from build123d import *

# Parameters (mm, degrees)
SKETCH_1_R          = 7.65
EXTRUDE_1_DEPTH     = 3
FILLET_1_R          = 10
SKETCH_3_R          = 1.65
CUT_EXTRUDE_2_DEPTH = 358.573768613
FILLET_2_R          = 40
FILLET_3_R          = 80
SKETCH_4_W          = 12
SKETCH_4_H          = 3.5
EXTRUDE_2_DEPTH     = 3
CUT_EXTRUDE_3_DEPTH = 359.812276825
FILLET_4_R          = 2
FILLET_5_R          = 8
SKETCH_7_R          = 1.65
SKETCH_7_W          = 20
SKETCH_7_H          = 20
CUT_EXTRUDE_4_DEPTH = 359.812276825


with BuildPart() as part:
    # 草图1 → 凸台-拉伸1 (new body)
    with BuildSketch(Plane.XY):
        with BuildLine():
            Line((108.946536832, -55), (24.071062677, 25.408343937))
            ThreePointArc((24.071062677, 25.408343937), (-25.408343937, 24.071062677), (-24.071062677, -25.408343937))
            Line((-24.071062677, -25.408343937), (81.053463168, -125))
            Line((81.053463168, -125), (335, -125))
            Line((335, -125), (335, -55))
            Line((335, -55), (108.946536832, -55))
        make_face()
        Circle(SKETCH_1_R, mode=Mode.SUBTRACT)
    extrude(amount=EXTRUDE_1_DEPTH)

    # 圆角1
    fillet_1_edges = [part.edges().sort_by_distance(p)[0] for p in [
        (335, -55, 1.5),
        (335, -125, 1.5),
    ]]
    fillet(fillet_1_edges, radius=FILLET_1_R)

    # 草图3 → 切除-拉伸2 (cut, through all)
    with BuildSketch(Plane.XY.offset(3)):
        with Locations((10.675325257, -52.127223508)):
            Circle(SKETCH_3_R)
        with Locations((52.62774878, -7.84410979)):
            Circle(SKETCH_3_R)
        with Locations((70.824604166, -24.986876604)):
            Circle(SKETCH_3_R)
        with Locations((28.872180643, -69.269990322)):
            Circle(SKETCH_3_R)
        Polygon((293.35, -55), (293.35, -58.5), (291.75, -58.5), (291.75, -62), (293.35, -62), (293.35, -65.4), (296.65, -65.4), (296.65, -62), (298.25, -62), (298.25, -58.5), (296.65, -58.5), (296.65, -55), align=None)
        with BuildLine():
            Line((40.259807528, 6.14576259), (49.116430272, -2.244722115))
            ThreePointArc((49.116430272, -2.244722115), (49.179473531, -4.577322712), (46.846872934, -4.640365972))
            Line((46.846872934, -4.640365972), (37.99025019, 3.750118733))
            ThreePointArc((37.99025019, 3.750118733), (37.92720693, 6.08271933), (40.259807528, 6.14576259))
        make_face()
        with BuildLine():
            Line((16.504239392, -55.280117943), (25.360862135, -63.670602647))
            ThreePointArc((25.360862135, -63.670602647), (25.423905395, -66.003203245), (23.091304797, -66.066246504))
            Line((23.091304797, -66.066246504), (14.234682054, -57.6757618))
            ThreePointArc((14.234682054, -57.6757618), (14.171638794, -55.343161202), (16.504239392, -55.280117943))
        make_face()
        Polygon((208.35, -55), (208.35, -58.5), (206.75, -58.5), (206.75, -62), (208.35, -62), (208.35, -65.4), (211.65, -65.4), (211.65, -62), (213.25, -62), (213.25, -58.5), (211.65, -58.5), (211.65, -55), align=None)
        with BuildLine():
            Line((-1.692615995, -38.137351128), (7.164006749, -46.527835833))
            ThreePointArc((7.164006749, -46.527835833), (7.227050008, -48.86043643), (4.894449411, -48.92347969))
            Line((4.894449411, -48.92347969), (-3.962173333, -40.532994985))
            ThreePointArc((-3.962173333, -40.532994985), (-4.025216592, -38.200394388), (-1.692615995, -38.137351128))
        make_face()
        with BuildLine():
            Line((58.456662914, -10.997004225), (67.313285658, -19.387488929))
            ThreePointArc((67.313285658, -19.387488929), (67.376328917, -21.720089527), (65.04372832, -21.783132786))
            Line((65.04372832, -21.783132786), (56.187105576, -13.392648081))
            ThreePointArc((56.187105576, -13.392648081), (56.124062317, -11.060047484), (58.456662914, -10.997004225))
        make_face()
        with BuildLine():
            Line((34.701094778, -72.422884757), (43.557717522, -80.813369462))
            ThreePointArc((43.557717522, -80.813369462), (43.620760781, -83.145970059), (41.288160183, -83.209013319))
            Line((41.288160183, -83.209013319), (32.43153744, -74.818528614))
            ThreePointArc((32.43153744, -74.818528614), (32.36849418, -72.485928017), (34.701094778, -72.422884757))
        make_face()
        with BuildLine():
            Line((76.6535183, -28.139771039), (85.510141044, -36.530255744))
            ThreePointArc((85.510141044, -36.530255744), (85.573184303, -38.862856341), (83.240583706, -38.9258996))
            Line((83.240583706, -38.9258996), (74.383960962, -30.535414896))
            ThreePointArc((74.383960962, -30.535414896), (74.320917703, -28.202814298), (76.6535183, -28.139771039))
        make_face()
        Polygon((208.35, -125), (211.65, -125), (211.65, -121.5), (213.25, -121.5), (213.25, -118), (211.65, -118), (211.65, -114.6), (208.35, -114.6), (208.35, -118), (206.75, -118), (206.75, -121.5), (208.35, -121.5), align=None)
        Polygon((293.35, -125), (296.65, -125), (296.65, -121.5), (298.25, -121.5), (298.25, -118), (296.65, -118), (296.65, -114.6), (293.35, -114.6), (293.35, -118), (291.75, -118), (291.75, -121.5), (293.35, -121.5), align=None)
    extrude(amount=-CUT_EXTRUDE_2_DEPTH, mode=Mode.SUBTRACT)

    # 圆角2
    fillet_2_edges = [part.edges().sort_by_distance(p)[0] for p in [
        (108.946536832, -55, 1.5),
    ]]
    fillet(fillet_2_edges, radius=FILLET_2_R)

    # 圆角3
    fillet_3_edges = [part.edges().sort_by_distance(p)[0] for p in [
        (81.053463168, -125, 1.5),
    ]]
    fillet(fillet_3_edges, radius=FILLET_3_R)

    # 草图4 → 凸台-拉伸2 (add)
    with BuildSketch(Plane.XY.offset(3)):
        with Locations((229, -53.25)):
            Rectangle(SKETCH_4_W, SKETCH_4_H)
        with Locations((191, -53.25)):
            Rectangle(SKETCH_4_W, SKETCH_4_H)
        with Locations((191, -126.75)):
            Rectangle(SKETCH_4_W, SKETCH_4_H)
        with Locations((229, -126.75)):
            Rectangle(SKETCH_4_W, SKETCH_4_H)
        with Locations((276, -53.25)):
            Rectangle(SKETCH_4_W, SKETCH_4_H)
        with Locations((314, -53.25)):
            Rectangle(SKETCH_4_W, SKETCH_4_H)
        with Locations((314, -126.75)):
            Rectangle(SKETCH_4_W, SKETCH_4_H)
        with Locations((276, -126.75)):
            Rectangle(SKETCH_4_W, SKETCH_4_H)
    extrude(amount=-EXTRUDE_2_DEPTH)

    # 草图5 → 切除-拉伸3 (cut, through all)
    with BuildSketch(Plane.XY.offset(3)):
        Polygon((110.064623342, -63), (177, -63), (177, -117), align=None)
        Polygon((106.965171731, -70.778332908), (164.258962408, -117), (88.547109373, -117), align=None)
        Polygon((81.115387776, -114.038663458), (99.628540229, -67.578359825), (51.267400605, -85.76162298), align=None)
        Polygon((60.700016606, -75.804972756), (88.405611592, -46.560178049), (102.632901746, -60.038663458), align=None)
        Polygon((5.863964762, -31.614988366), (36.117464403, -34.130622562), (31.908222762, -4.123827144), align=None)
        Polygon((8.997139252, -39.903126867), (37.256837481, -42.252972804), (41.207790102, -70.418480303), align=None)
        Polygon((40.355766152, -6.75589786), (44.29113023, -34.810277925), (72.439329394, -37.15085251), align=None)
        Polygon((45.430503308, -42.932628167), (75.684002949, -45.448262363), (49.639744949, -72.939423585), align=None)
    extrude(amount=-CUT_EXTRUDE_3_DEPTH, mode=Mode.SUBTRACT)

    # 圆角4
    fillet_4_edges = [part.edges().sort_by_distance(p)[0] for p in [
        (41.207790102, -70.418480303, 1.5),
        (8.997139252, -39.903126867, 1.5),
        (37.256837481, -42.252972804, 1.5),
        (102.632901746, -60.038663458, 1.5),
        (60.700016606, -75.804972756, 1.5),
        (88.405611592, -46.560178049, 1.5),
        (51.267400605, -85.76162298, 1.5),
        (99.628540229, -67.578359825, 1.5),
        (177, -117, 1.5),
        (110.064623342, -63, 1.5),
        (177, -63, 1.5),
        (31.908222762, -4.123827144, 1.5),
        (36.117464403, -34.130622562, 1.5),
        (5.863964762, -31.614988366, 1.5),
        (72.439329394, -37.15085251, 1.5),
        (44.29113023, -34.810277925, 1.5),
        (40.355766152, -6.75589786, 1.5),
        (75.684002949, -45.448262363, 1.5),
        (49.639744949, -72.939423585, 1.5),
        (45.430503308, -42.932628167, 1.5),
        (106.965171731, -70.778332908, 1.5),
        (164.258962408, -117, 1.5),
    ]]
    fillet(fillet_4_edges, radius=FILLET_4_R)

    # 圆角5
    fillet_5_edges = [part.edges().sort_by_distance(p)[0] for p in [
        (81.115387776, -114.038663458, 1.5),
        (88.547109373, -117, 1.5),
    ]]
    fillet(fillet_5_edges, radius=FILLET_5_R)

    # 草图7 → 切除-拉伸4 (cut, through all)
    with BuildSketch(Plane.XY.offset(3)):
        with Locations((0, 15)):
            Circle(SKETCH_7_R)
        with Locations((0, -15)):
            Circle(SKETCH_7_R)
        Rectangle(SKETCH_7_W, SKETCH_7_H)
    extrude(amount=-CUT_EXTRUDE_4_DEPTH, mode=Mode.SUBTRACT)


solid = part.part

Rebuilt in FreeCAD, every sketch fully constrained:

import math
import FreeCAD as App
import Part
import Sketcher
from FreeCAD import Vector


def edges_at(feature, points):
    """Names of the edges that pass closest to the given points."""
    edges = feature.Shape.Edges
    near = lambda p: min(range(len(edges)), key=lambda i: edges[i].distToShape(Part.Vertex(*p))[0])
    return sorted({f"Edge{near(p) + 1}" for p in points})


def add_polygon(sketch, points):
    """Adds a closed chain of lines whose ends are joined by coincident constraints."""
    first, n = sketch.GeometryCount, len(points)
    for a, b in zip(points, points[1:] + points[:1]):
        sketch.addGeometry(Part.LineSegment(App.Vector(*a, 0), App.Vector(*b, 0)), False)
    for i in range(n):
        sketch.addConstraint(Sketcher.Constraint("Coincident", first + i, 2, first + (i + 1) % n, 1))

doc = App.newDocument("Part")
body = doc.addObject("PartDesign::Body", "Body")

# Sketch on XY plane
sketch1 = body.newObject("Sketcher::SketchObject", "Sketch")
sketch1.AttachmentSupport = (doc.getObject("XY_Plane"), [""])
sketch1.MapMode = "FlatFace"
sketch1.addGeometry(Part.LineSegment(Vector(109, -55, 0), Vector(24, 25, 0)), False)
sketch1.addGeometry(Part.ArcOfCircle(Part.Circle(Vector(0, 0, 0), Vector(0, 0, 1), 35), math.radians(47), math.radians(227)), False)
sketch1.addGeometry(Part.LineSegment(Vector(-24, -25, 0), Vector(81, -125, 0)), False)
sketch1.addGeometry(Part.LineSegment(Vector(81, -125, 0), Vector(335, -125, 0)), False)
sketch1.addGeometry(Part.LineSegment(Vector(335, -125, 0), Vector(335, -55, 0)), False)
sketch1.addGeometry(Part.LineSegment(Vector(335, -55, 0), Vector(109, -55, 0)), False)
sketch1.addGeometry(Part.Circle(Vector(0, 0, 0), Vector(0, 0, 1), 8), False)
sketch1.addConstraint(Sketcher.Constraint("Tangent", 0, 2, 1, 1))
sketch1.addConstraint(Sketcher.Constraint("Tangent", 1, 2, 2, 1))
sketch1.addConstraint(Sketcher.Constraint("Coincident", 2, 2, 3, 1))
sketch1.addConstraint(Sketcher.Constraint("Coincident", 3, 2, 4, 1))
sketch1.addConstraint(Sketcher.Constraint("Coincident", 4, 2, 5, 1))
sketch1.addConstraint(Sketcher.Constraint("Coincident", 5, 2, 0, 1))
sketch1.addConstraint(Sketcher.Constraint("Horizontal", 3))
sketch1.addConstraint(Sketcher.Constraint("Vertical", 4))
sketch1.addConstraint(Sketcher.Constraint("Horizontal", 5))
sketch1.addConstraint(Sketcher.Constraint("Coincident", 1, 3, -1, 1))
sketch1.addConstraint(Sketcher.Constraint("Coincident", 6, 3, -1, 1))
sketch1.addConstraint(Sketcher.Constraint("Parallel", 0, 2))
sketch1.addConstraint(Sketcher.Constraint("Radius", 1, 35.0))
sketch1.addConstraint(Sketcher.Constraint("Diameter", 6, 15.3))
sketch1.addConstraint(Sketcher.Constraint("DistanceY", 4, 1, 4, 2, 70.0))
sketch1.addConstraint(Sketcher.Constraint("DistanceY", 2, 2, -1, 1, 125.0))
sketch1.addConstraint(Sketcher.Constraint("DistanceX", -1, 1, 3, 2, 335.0))
sketch1.addConstraint(Sketcher.Constraint("DistanceX", 0, 2, 2, 2, 56.9824))
pad1 = body.newObject("PartDesign::Pad", "Pad")
pad1.Profile = sketch1
pad1.Length = 3
doc.recompute()

fillet = body.newObject("PartDesign::Fillet", "Fillet")
fillet.Base = (pad1, edges_at(pad1, [(335, -55, 1.5), (335, -125, 1.5)]))
fillet.Radius = 10

# Sketch on XY plane
sketch2 = body.newObject("Sketcher::SketchObject", "Sketch001")
sketch2.AttachmentSupport = (doc.getObject("XY_Plane"), [""])
sketch2.MapMode = "FlatFace"
sketch2.AttachmentOffset = App.Placement(Vector(0, 0, 3), App.Rotation())
sketch2.addGeometry(Part.Circle(Vector(10.7, -52.1, 0), Vector(0, 0, 1), 1.6), False)  # 0
sketch2.addGeometry(Part.Circle(Vector(52.6, -7.8, 0), Vector(0, 0, 1), 1.6), False)  # 1
sketch2.addGeometry(Part.Circle(Vector(70.8, -25, 0), Vector(0, 0, 1), 1.6), False)  # 2
sketch2.addGeometry(Part.Circle(Vector(28.9, -69.3, 0), Vector(0, 0, 1), 1.6), False)  # 3
add_polygon(sketch2, [(293.4, -55), (293.4, -58.5), (291.8, -58.5), (291.8, -62), (293.4, -62), (293.4, -65.4), (296.6, -65.4), (296.6, -62), (298.2, -62), (298.2, -58.5), (296.6, -58.5), (296.6, -55)])  # lines 4-15
sketch2.addGeometry(Part.LineSegment(Vector(49.1, -2.2, 0), Vector(40.3, 6.1, 0)), False)  # 16
sketch2.addGeometry(Part.ArcOfCircle(Part.Circle(Vector(39.1, 4.9, 0), Vector(0, 0, 1), 1.6), math.radians(47), math.radians(227)), False)  # 17
sketch2.addGeometry(Part.LineSegment(Vector(38, 3.8, 0), Vector(46.8, -4.6, 0)), False)  # 18
sketch2.addGeometry(Part.ArcOfCircle(Part.Circle(Vector(48, -3.4, 0), Vector(0, 0, 1), 1.6), math.radians(-133), math.radians(47)), False)  # 19
sketch2.addGeometry(Part.LineSegment(Vector(25.4, -63.7, 0), Vector(16.5, -55.3, 0)), False)  # 20
sketch2.addGeometry(Part.ArcOfCircle(Part.Circle(Vector(15.4, -56.5, 0), Vector(0, 0, 1), 1.6), math.radians(47), math.radians(227)), False)  # 21
sketch2.addGeometry(Part.LineSegment(Vector(14.2, -57.7, 0), Vector(23.1, -66.1, 0)), False)  # 22
sketch2.addGeometry(Part.ArcOfCircle(Part.Circle(Vector(24.2, -64.9, 0), Vector(0, 0, 1), 1.6), math.radians(-133), math.radians(47)), False)  # 23
add_polygon(sketch2, [(208.3, -55), (208.3, -58.5), (206.8, -58.5), (206.8, -62), (208.3, -62), (208.3, -65.4), (211.7, -65.4), (211.7, -62), (213.2, -62), (213.2, -58.5), (211.7, -58.5), (211.7, -55)])  # lines 24-35
sketch2.addGeometry(Part.LineSegment(Vector(7.2, -46.5, 0), Vector(-1.7, -38.1, 0)), False)  # 36
sketch2.addGeometry(Part.ArcOfCircle(Part.Circle(Vector(-2.8, -39.3, 0), Vector(0, 0, 1), 1.6), math.radians(47), math.radians(227)), False)  # 37
sketch2.addGeometry(Part.LineSegment(Vector(-4, -40.5, 0), Vector(4.9, -48.9, 0)), False)  # 38
sketch2.addGeometry(Part.ArcOfCircle(Part.Circle(Vector(6, -47.7, 0), Vector(0, 0, 1), 1.6), math.radians(-133), math.radians(47)), False)  # 39
sketch2.addGeometry(Part.LineSegment(Vector(67.3, -19.4, 0), Vector(58.5, -11, 0)), False)  # 40
sketch2.addGeometry(Part.ArcOfCircle(Part.Circle(Vector(57.3, -12.2, 0), Vector(0, 0, 1), 1.6), math.radians(47), math.radians(227)), False)  # 41
sketch2.addGeometry(Part.LineSegment(Vector(56.2, -13.4, 0), Vector(65, -21.8, 0)), False)  # 42
sketch2.addGeometry(Part.ArcOfCircle(Part.Circle(Vector(66.2, -20.6, 0), Vector(0, 0, 1), 1.6), math.radians(-133), math.radians(47)), False)  # 43
sketch2.addGeometry(Part.LineSegment(Vector(43.6, -80.8, 0), Vector(34.7, -72.4, 0)), False)  # 44
sketch2.addGeometry(Part.ArcOfCircle(Part.Circle(Vector(33.6, -73.6, 0), Vector(0, 0, 1), 1.6), math.radians(47), math.radians(227)), False)  # 45
sketch2.addGeometry(Part.LineSegment(Vector(32.4, -74.8, 0), Vector(41.3, -83.2, 0)), False)  # 46
sketch2.addGeometry(Part.ArcOfCircle(Part.Circle(Vector(42.4, -82, 0), Vector(0, 0, 1), 1.6), math.radians(-133), math.radians(47)), False)  # 47
sketch2.addGeometry(Part.LineSegment(Vector(85.5, -36.5, 0), Vector(76.7, -28.1, 0)), False)  # 48
sketch2.addGeometry(Part.ArcOfCircle(Part.Circle(Vector(75.5, -29.3, 0), Vector(0, 0, 1), 1.6), math.radians(47), math.radians(227)), False)  # 49
sketch2.addGeometry(Part.LineSegment(Vector(74.4, -30.5, 0), Vector(83.2, -38.9, 0)), False)  # 50
sketch2.addGeometry(Part.ArcOfCircle(Part.Circle(Vector(84.4, -37.7, 0), Vector(0, 0, 1), 1.6), math.radians(-133), math.radians(47)), False)  # 51
add_polygon(sketch2, [(208.3, -125), (211.7, -125), (211.7, -121.5), (213.2, -121.5), (213.2, -118), (211.7, -118), (211.7, -114.6), (208.3, -114.6), (208.3, -118), (206.8, -118), (206.8, -121.5), (208.3, -121.5)])  # lines 52-63
add_polygon(sketch2, [(293.4, -125), (296.6, -125), (296.6, -121.5), (298.2, -121.5), (298.2, -118), (296.6, -118), (296.6, -114.6), (293.4, -114.6), (293.4, -118), (291.8, -118), (291.8, -121.5), (293.4, -121.5)])  # lines 64-75
sketch2.addConstraint(Sketcher.Constraint("Tangent", 16, 2, 17, 1))
sketch2.addConstraint(Sketcher.Constraint("Tangent", 17, 2, 18, 1))
sketch2.addConstraint(Sketcher.Constraint("Tangent", 18, 2, 19, 1))
sketch2.addConstraint(Sketcher.Constraint("Tangent", 19, 2, 16, 1))
sketch2.addConstraint(Sketcher.Constraint("Tangent", 20, 2, 21, 1))
sketch2.addConstraint(Sketcher.Constraint("Tangent", 21, 2, 22, 1))
sketch2.addConstraint(Sketcher.Constraint("Tangent", 22, 2, 23, 1))
sketch2.addConstraint(Sketcher.Constraint("Tangent", 23, 2, 20, 1))
sketch2.addConstraint(Sketcher.Constraint("Tangent", 36, 2, 37, 1))
sketch2.addConstraint(Sketcher.Constraint("Tangent", 37, 2, 38, 1))
sketch2.addConstraint(Sketcher.Constraint("Tangent", 38, 2, 39, 1))
sketch2.addConstraint(Sketcher.Constraint("Tangent", 39, 2, 36, 1))
sketch2.addConstraint(Sketcher.Constraint("Tangent", 40, 2, 41, 1))
sketch2.addConstraint(Sketcher.Constraint("Tangent", 41, 2, 42, 1))
sketch2.addConstraint(Sketcher.Constraint("Tangent", 42, 2, 43, 1))
sketch2.addConstraint(Sketcher.Constraint("Tangent", 43, 2, 40, 1))
sketch2.addConstraint(Sketcher.Constraint("Tangent", 44, 2, 45, 1))
sketch2.addConstraint(Sketcher.Constraint("Tangent", 45, 2, 46, 1))
sketch2.addConstraint(Sketcher.Constraint("Tangent", 46, 2, 47, 1))
sketch2.addConstraint(Sketcher.Constraint("Tangent", 47, 2, 44, 1))
sketch2.addConstraint(Sketcher.Constraint("Tangent", 48, 2, 49, 1))
sketch2.addConstraint(Sketcher.Constraint("Tangent", 49, 2, 50, 1))
sketch2.addConstraint(Sketcher.Constraint("Tangent", 50, 2, 51, 1))
sketch2.addConstraint(Sketcher.Constraint("Tangent", 51, 2, 48, 1))
sketch2.addConstraint(Sketcher.Constraint("Vertical", 4))
sketch2.addConstraint(Sketcher.Constraint("Horizontal", 5))
sketch2.addConstraint(Sketcher.Constraint("Vertical", 6))
sketch2.addConstraint(Sketcher.Constraint("Horizontal", 7))
sketch2.addConstraint(Sketcher.Constraint("Vertical", 8))
sketch2.addConstraint(Sketcher.Constraint("Horizontal", 9))
sketch2.addConstraint(Sketcher.Constraint("Vertical", 10))
sketch2.addConstraint(Sketcher.Constraint("Horizontal", 11))
sketch2.addConstraint(Sketcher.Constraint("Vertical", 12))
sketch2.addConstraint(Sketcher.Constraint("Horizontal", 13))
sketch2.addConstraint(Sketcher.Constraint("Vertical", 14))
sketch2.addConstraint(Sketcher.Constraint("Horizontal", 15))
sketch2.addConstraint(Sketcher.Constraint("Vertical", 24))
sketch2.addConstraint(Sketcher.Constraint("Horizontal", 25))
sketch2.addConstraint(Sketcher.Constraint("Vertical", 26))
sketch2.addConstraint(Sketcher.Constraint("Horizontal", 27))
sketch2.addConstraint(Sketcher.Constraint("Vertical", 28))
sketch2.addConstraint(Sketcher.Constraint("Horizontal", 29))
sketch2.addConstraint(Sketcher.Constraint("Vertical", 30))
sketch2.addConstraint(Sketcher.Constraint("Horizontal", 31))
sketch2.addConstraint(Sketcher.Constraint("Vertical", 32))
sketch2.addConstraint(Sketcher.Constraint("Horizontal", 33))
sketch2.addConstraint(Sketcher.Constraint("Vertical", 34))
sketch2.addConstraint(Sketcher.Constraint("Horizontal", 35))
sketch2.addConstraint(Sketcher.Constraint("Horizontal", 52))
sketch2.addConstraint(Sketcher.Constraint("Vertical", 53))
sketch2.addConstraint(Sketcher.Constraint("Horizontal", 54))
sketch2.addConstraint(Sketcher.Constraint("Vertical", 55))
sketch2.addConstraint(Sketcher.Constraint("Horizontal", 56))
sketch2.addConstraint(Sketcher.Constraint("Vertical", 57))
sketch2.addConstraint(Sketcher.Constraint("Horizontal", 58))
sketch2.addConstraint(Sketcher.Constraint("Vertical", 59))
sketch2.addConstraint(Sketcher.Constraint("Horizontal", 60))
sketch2.addConstraint(Sketcher.Constraint("Vertical", 61))
sketch2.addConstraint(Sketcher.Constraint("Horizontal", 62))
sketch2.addConstraint(Sketcher.Constraint("Vertical", 63))
sketch2.addConstraint(Sketcher.Constraint("Horizontal", 64))
sketch2.addConstraint(Sketcher.Constraint("Vertical", 65))
sketch2.addConstraint(Sketcher.Constraint("Horizontal", 66))
sketch2.addConstraint(Sketcher.Constraint("Vertical", 67))
sketch2.addConstraint(Sketcher.Constraint("Horizontal", 68))
sketch2.addConstraint(Sketcher.Constraint("Vertical", 69))
sketch2.addConstraint(Sketcher.Constraint("Horizontal", 70))
sketch2.addConstraint(Sketcher.Constraint("Vertical", 71))
sketch2.addConstraint(Sketcher.Constraint("Horizontal", 72))
sketch2.addConstraint(Sketcher.Constraint("Vertical", 73))
sketch2.addConstraint(Sketcher.Constraint("Horizontal", 74))
sketch2.addConstraint(Sketcher.Constraint("Vertical", 75))
sketch2.addConstraint(Sketcher.Constraint("Equal", 0, 1))
sketch2.addConstraint(Sketcher.Constraint("Equal", 1, 2))
sketch2.addConstraint(Sketcher.Constraint("Equal", 2, 3))
sketch2.addConstraint(Sketcher.Constraint("Equal", 3, 17))
sketch2.addConstraint(Sketcher.Constraint("Equal", 17, 19))
sketch2.addConstraint(Sketcher.Constraint("Equal", 19, 21))
sketch2.addConstraint(Sketcher.Constraint("Equal", 21, 23))
sketch2.addConstraint(Sketcher.Constraint("Equal", 23, 37))
sketch2.addConstraint(Sketcher.Constraint("Equal", 37, 39))
sketch2.addConstraint(Sketcher.Constraint("Equal", 39, 41))
sketch2.addConstraint(Sketcher.Constraint("Equal", 41, 43))
sketch2.addConstraint(Sketcher.Constraint("Equal", 43, 45))
sketch2.addConstraint(Sketcher.Constraint("Equal", 45, 47))
sketch2.addConstraint(Sketcher.Constraint("Equal", 47, 49))
sketch2.addConstraint(Sketcher.Constraint("Equal", 49, 51))
sketch2.addConstraint(Sketcher.Constraint("Parallel", 18, 20))
sketch2.addConstraint(Sketcher.Constraint("Parallel", 22, 36))
sketch2.addConstraint(Sketcher.Constraint("Parallel", 38, 40))
sketch2.addConstraint(Sketcher.Constraint("Parallel", 42, 44))
sketch2.addConstraint(Sketcher.Constraint("Parallel", 46, 48))
sketch2.addConstraint(Sketcher.Constraint("Horizontal", 7, 2, 10, 2))
sketch2.addConstraint(Sketcher.Constraint("Horizontal", 5, 2, 12, 2))
sketch2.addConstraint(Sketcher.Constraint("Horizontal", 13, 2, 24, 2))
sketch2.addConstraint(Sketcher.Constraint("Horizontal", 11, 2, 26, 2))
sketch2.addConstraint(Sketcher.Constraint("Horizontal", 9, 2, 28, 2))
sketch2.addConstraint(Sketcher.Constraint("Horizontal", 27, 2, 30, 2))
sketch2.addConstraint(Sketcher.Constraint("Horizontal", 25, 2, 32, 2))
sketch2.addConstraint(Sketcher.Constraint("Horizontal", 15, 2, 34, 2))
sketch2.addConstraint(Sketcher.Constraint("Horizontal", 56, 2, 59, 2))
sketch2.addConstraint(Sketcher.Constraint("Horizontal", 54, 2, 61, 2))
sketch2.addConstraint(Sketcher.Constraint("Horizontal", 63, 2, 64, 2))
sketch2.addConstraint(Sketcher.Constraint("Horizontal", 62, 2, 65, 2))
sketch2.addConstraint(Sketcher.Constraint("Horizontal", 60, 2, 67, 2))
sketch2.addConstraint(Sketcher.Constraint("Horizontal", 58, 2, 69, 2))
sketch2.addConstraint(Sketcher.Constraint("Horizontal", 68, 2, 71, 2))
sketch2.addConstraint(Sketcher.Constraint("Horizontal", 66, 2, 73, 2))
sketch2.addConstraint(Sketcher.Constraint("Vertical", 4, 2, 7, 2))
sketch2.addConstraint(Sketcher.Constraint("Vertical", 10, 2, 13, 2))
sketch2.addConstraint(Sketcher.Constraint("Vertical", 24, 2, 27, 2))
sketch2.addConstraint(Sketcher.Constraint("Vertical", 30, 2, 33, 2))
sketch2.addConstraint(Sketcher.Constraint("Vertical", 34, 2, 52, 2))
sketch2.addConstraint(Sketcher.Constraint("Vertical", 32, 2, 54, 2))
sketch2.addConstraint(Sketcher.Constraint("Vertical", 53, 2, 56, 2))
sketch2.addConstraint(Sketcher.Constraint("Vertical", 35, 2, 58, 2))
sketch2.addConstraint(Sketcher.Constraint("Vertical", 26, 2, 60, 2))
sketch2.addConstraint(Sketcher.Constraint("Vertical", 59, 2, 62, 2))
sketch2.addConstraint(Sketcher.Constraint("Vertical", 14, 2, 64, 2))
sketch2.addConstraint(Sketcher.Constraint("Vertical", 12, 2, 66, 2))
sketch2.addConstraint(Sketcher.Constraint("Vertical", 65, 2, 68, 2))
sketch2.addConstraint(Sketcher.Constraint("Vertical", 15, 2, 70, 2))
sketch2.addConstraint(Sketcher.Constraint("Vertical", 6, 2, 72, 2))
sketch2.addConstraint(Sketcher.Constraint("Vertical", 71, 2, 74, 2))
sketch2.addConstraint(Sketcher.Constraint("Equal", 7, 11))
sketch2.addConstraint(Sketcher.Constraint("Equal", 13, 25))
sketch2.addConstraint(Sketcher.Constraint("Equal", 15, 29))
sketch2.addConstraint(Sketcher.Constraint("Equal", 27, 31))
sketch2.addConstraint(Sketcher.Constraint("Equal", 4, 6))
sketch2.addConstraint(Sketcher.Constraint("Equal", 34, 53))
sketch2.addConstraint(Sketcher.Constraint("Equal", 53, 55))
sketch2.addConstraint(Sketcher.Constraint("Equal", 30, 57))
sketch2.addConstraint(Sketcher.Constraint("Equal", 18, 20))
sketch2.addConstraint(Sketcher.Constraint("Equal", 22, 36))
sketch2.addConstraint(Sketcher.Constraint("Equal", 38, 40))
sketch2.addConstraint(Sketcher.Constraint("Equal", 42, 44))
sketch2.addConstraint(Sketcher.Constraint("Equal", 46, 48))
sketch2.addConstraint(Sketcher.Constraint("Diameter", 0, 3.3))
sketch2.addConstraint(Sketcher.Constraint("DistanceX", 5, 2, 5, 1, 1.6))
sketch2.addConstraint(Sketcher.Constraint("DistanceX", 9, 1, 9, 2, 3.3))
sketch2.addConstraint(Sketcher.Constraint("DistanceY", 4, 2, 4, 1, 3.5))
sketch2.addConstraint(Sketcher.Constraint("DistanceY", 8, 2, 8, 1, 3.4))
sketch2.addConstraint(Sketcher.Constraint("DistanceY", 6, 2, -1, 1, 62.0))
sketch2.addConstraint(Sketcher.Constraint("DistanceY", 52, 2, -1, 1, 125.0))
sketch2.addConstraint(Sketcher.Constraint("Distance", 16, 12.2))
sketch2.addConstraint(Sketcher.Constraint("DistanceX", -1, 1, 4, 2, 293.35))
sketch2.addConstraint(Sketcher.Constraint("DistanceX", -1, 1, 24, 2, 208.35))
sketch2.addConstraint(Sketcher.Constraint("DistanceY", 50, 2, -1, 1, 38.9259))
sketch2.addConstraint(Sketcher.Constraint("DistanceX", -1, 1, 1, 3, 52.627749))
sketch2.addConstraint(Sketcher.Constraint("DistanceY", 1, 3, -1, 1, 7.84411))
sketch2.addConstraint(Sketcher.Constraint("DistanceX", -1, 1, 3, 3, 28.872181))
sketch2.addConstraint(Sketcher.Constraint("DistanceY", 3, 3, -1, 1, 69.26999))
sketch2.addConstraint(Sketcher.Constraint("DistanceX", -1, 1, 17, 3, 39.125029))
sketch2.addConstraint(Sketcher.Constraint("DistanceY", -1, 1, 17, 3, 4.947941))
sketch2.addConstraint(Sketcher.Constraint("DistanceX", -1, 1, 19, 3, 47.981652))
sketch2.addConstraint(Sketcher.Constraint("DistanceX", -1, 1, 21, 3, 15.369461))
sketch2.addConstraint(Sketcher.Constraint("DistanceY", 21, 3, -1, 1, 56.47794))
sketch2.addConstraint(Sketcher.Constraint("DistanceX", -1, 1, 39, 3, 6.029228))
sketch2.addConstraint(Sketcher.Constraint("DistanceY", 43, 3, -1, 1, 20.585311))
sketch2.addConstraint(Sketcher.Constraint("DistanceX", -1, 1, 47, 3, 42.422939))
sketch2.addConstraint(Sketcher.Constraint("DistanceY", 47, 3, -1, 1, 82.011191))
sketch2.addConstraint(Sketcher.Constraint("DistanceX", -1, 1, 49, 3, 75.51874))
sketch2.addConstraint(Sketcher.Constraint("DistanceY", 36, 2, -1, 1, 38.137351))
sketch2.addConstraint(Sketcher.Constraint("DistanceX", -1, 1, 42, 2, 65.043728))
sketch2.addConstraint(Sketcher.Constraint("DistanceX", -1, 1, 0, 3, 10.675325))
sketch2.addConstraint(Sketcher.Constraint("DistanceY", 0, 3, -1, 1, 52.127224))
sketch2.addConstraint(Sketcher.Constraint("DistanceX", -1, 1, 2, 3, 70.824604))
sketch2.addConstraint(Sketcher.Constraint("DistanceY", 2, 3, -1, 1, 24.986877))
pocket1 = body.newObject("PartDesign::Pocket", "Pocket")
pocket1.Profile = sketch2
pocket1.Type = "ThroughAll"
doc.recompute()

fillet2 = body.newObject("PartDesign::Fillet", "Fillet001")
fillet2.Base = (pocket1, edges_at(pocket1, [(108.947, -55, 1.5)]))
fillet2.Radius = 40
doc.recompute()

fillet3 = body.newObject("PartDesign::Fillet", "Fillet002")
fillet3.Base = (fillet2, edges_at(fillet2, [(81.053, -125, 1.5)]))
fillet3.Radius = 80

# Sketch on XY plane
sketch3 = body.newObject("Sketcher::SketchObject", "Sketch002")
sketch3.AttachmentSupport = (doc.getObject("XY_Plane"), [""])
sketch3.MapMode = "FlatFace"
sketch3.AttachmentOffset = App.Placement(Vector(0, 0, 3), App.Rotation())
add_polygon(sketch3, [(223, -51.5), (223, -55), (235, -55), (235, -51.5)])  # lines 0-3
add_polygon(sketch3, [(185, -51.5), (185, -55), (197, -55), (197, -51.5)])  # lines 4-7
add_polygon(sketch3, [(185, -125), (185, -128.5), (197, -128.5), (197, -125)])  # lines 8-11
add_polygon(sketch3, [(223, -125), (223, -128.5), (235, -128.5), (235, -125)])  # lines 12-15
add_polygon(sketch3, [(270, -51.5), (270, -55), (282, -55), (282, -51.5)])  # lines 16-19
add_polygon(sketch3, [(308, -51.5), (308, -55), (320, -55), (320, -51.5)])  # lines 20-23
add_polygon(sketch3, [(308, -125), (308, -128.5), (320, -128.5), (320, -125)])  # lines 24-27
add_polygon(sketch3, [(270, -125), (270, -128.5), (282, -128.5), (282, -125)])  # lines 28-31
sketch3.addConstraint(Sketcher.Constraint("Vertical", 0))
sketch3.addConstraint(Sketcher.Constraint("Horizontal", 1))
sketch3.addConstraint(Sketcher.Constraint("Vertical", 2))
sketch3.addConstraint(Sketcher.Constraint("Horizontal", 3))
sketch3.addConstraint(Sketcher.Constraint("Vertical", 4))
sketch3.addConstraint(Sketcher.Constraint("Horizontal", 5))
sketch3.addConstraint(Sketcher.Constraint("Vertical", 6))
sketch3.addConstraint(Sketcher.Constraint("Horizontal", 7))
sketch3.addConstraint(Sketcher.Constraint("Vertical", 8))
sketch3.addConstraint(Sketcher.Constraint("Horizontal", 9))
sketch3.addConstraint(Sketcher.Constraint("Vertical", 10))
sketch3.addConstraint(Sketcher.Constraint("Horizontal", 11))
sketch3.addConstraint(Sketcher.Constraint("Vertical", 12))
sketch3.addConstraint(Sketcher.Constraint("Horizontal", 13))
sketch3.addConstraint(Sketcher.Constraint("Vertical", 14))
sketch3.addConstraint(Sketcher.Constraint("Horizontal", 15))
sketch3.addConstraint(Sketcher.Constraint("Vertical", 16))
sketch3.addConstraint(Sketcher.Constraint("Horizontal", 17))
sketch3.addConstraint(Sketcher.Constraint("Vertical", 18))
sketch3.addConstraint(Sketcher.Constraint("Horizontal", 19))
sketch3.addConstraint(Sketcher.Constraint("Vertical", 20))
sketch3.addConstraint(Sketcher.Constraint("Horizontal", 21))
sketch3.addConstraint(Sketcher.Constraint("Vertical", 22))
sketch3.addConstraint(Sketcher.Constraint("Horizontal", 23))
sketch3.addConstraint(Sketcher.Constraint("Vertical", 24))
sketch3.addConstraint(Sketcher.Constraint("Horizontal", 25))
sketch3.addConstraint(Sketcher.Constraint("Vertical", 26))
sketch3.addConstraint(Sketcher.Constraint("Horizontal", 27))
sketch3.addConstraint(Sketcher.Constraint("Vertical", 28))
sketch3.addConstraint(Sketcher.Constraint("Horizontal", 29))
sketch3.addConstraint(Sketcher.Constraint("Vertical", 30))
sketch3.addConstraint(Sketcher.Constraint("Horizontal", 31))
sketch3.addConstraint(Sketcher.Constraint("Horizontal", 1, 2, 4, 2))
sketch3.addConstraint(Sketcher.Constraint("Horizontal", 3, 2, 6, 2))
sketch3.addConstraint(Sketcher.Constraint("Horizontal", 9, 2, 12, 2))
sketch3.addConstraint(Sketcher.Constraint("Horizontal", 11, 2, 14, 2))
sketch3.addConstraint(Sketcher.Constraint("Horizontal", 5, 2, 16, 2))
sketch3.addConstraint(Sketcher.Constraint("Horizontal", 7, 2, 18, 2))
sketch3.addConstraint(Sketcher.Constraint("Horizontal", 17, 2, 20, 2))
sketch3.addConstraint(Sketcher.Constraint("Horizontal", 19, 2, 22, 2))
sketch3.addConstraint(Sketcher.Constraint("Horizontal", 13, 2, 24, 2))
sketch3.addConstraint(Sketcher.Constraint("Horizontal", 15, 2, 26, 2))
sketch3.addConstraint(Sketcher.Constraint("Horizontal", 25, 2, 28, 2))
sketch3.addConstraint(Sketcher.Constraint("Horizontal", 27, 2, 30, 2))
sketch3.addConstraint(Sketcher.Constraint("Vertical", 7, 2, 8, 2))
sketch3.addConstraint(Sketcher.Constraint("Vertical", 6, 2, 9, 2))
sketch3.addConstraint(Sketcher.Constraint("Vertical", 3, 2, 12, 2))
sketch3.addConstraint(Sketcher.Constraint("Vertical", 2, 2, 13, 2))
sketch3.addConstraint(Sketcher.Constraint("Vertical", 23, 2, 24, 2))
sketch3.addConstraint(Sketcher.Constraint("Vertical", 22, 2, 25, 2))
sketch3.addConstraint(Sketcher.Constraint("Vertical", 19, 2, 28, 2))
sketch3.addConstraint(Sketcher.Constraint("Vertical", 18, 2, 29, 2))
sketch3.addConstraint(Sketcher.Constraint("Equal", 3, 5))
sketch3.addConstraint(Sketcher.Constraint("Equal", 15, 17))
sketch3.addConstraint(Sketcher.Constraint("Equal", 19, 21))
sketch3.addConstraint(Sketcher.Constraint("Equal", 6, 8))
sketch3.addConstraint(Sketcher.Constraint("DistanceX", 1, 1, 1, 2, 12.0))
sketch3.addConstraint(Sketcher.Constraint("DistanceY", 0, 2, 0, 1, 3.5))
sketch3.addConstraint(Sketcher.Constraint("DistanceX", -1, 1, 0, 2, 223.0))
sketch3.addConstraint(Sketcher.Constraint("DistanceY", 0, 2, -1, 1, 55.0))
sketch3.addConstraint(Sketcher.Constraint("DistanceX", -1, 1, 4, 2, 185.0))
sketch3.addConstraint(Sketcher.Constraint("DistanceY", 10, 2, -1, 1, 125.0))
sketch3.addConstraint(Sketcher.Constraint("DistanceX", -1, 1, 16, 2, 270.0))
sketch3.addConstraint(Sketcher.Constraint("DistanceX", -1, 1, 20, 2, 308.0))
pad2 = body.newObject("PartDesign::Pad", "Pad001")
pad2.Profile = sketch3
pad2.Length = 3
pad2.Reversed = True

# Sketch on XY plane
sketch4 = body.newObject("Sketcher::SketchObject", "Sketch003")
sketch4.AttachmentSupport = (doc.getObject("XY_Plane"), [""])
sketch4.MapMode = "FlatFace"
sketch4.AttachmentOffset = App.Placement(Vector(0, 0, 3), App.Rotation())
add_polygon(sketch4, [(177, -63), (110.064623, -63), (177, -117)])  # lines 0-2
add_polygon(sketch4, [(164.258962, -117), (106.965172, -70.778333), (88.547109, -117)])  # lines 3-5
add_polygon(sketch4, [(81.115388, -114.038663), (99.62854, -67.57836), (51.267401, -85.761623)])  # lines 6-8
add_polygon(sketch4, [(88.405612, -46.560178), (60.700017, -75.804973), (102.632902, -60.038663)])  # lines 9-11
add_polygon(sketch4, [(5.863965, -31.614988), (36.117464, -34.130623), (31.908223, -4.123827)])  # lines 12-14
add_polygon(sketch4, [(37.256837, -42.252973), (8.997139, -39.903127), (41.20779, -70.41848)])  # lines 15-17
add_polygon(sketch4, [(40.355766, -6.755898), (44.29113, -34.810278), (72.439329, -37.150853)])  # lines 18-20
add_polygon(sketch4, [(75.684003, -45.448262), (45.430503, -42.932628), (49.639745, -72.939424)])  # lines 21-23
sketch4.addConstraint(Sketcher.Constraint("Horizontal", 0))
sketch4.addConstraint(Sketcher.Constraint("Vertical", 2))
sketch4.addConstraint(Sketcher.Constraint("Horizontal", 5))
sketch4.addConstraint(Sketcher.Constraint("DistanceY", 2, 1, 2, 2, 54.0))
sketch4.addConstraint(Sketcher.Constraint("DistanceY", 0, 2, -1, 1, 63.0))
sketch4.addConstraint(Sketcher.Constraint("DistanceX", -1, 1, 1, 2, 177.0))
sketch4.addConstraint(Sketcher.Constraint("DistanceY", 4, 2, -1, 1, 117.0))
sketch4.addConstraint(Sketcher.Constraint("Distance", 3, 73.614))
sketch4.addConstraint(Sketcher.Constraint("DistanceY", 7, 2, 12, 2, 51.631))
sketch4.addConstraint(Sketcher.Constraint("DistanceX", -1, 1, 7, 2, 51.267401))
sketch4.addConstraint(Sketcher.Constraint("DistanceX", -1, 1, 10, 2, 102.632902))
sketch4.addConstraint(Sketcher.Constraint("DistanceX", 14, 2, 12, 2, 30.2535))
sketch4.addConstraint(Sketcher.Constraint("DistanceY", 15, 2, 13, 2, 35.7793))
sketch4.addConstraint(Sketcher.Constraint("DistanceX", 15, 2, 17, 2, 28.259698))
sketch4.addConstraint(Sketcher.Constraint("DistanceX", 18, 2, 19, 2, 28.148199))
sketch4.addConstraint(Sketcher.Constraint("DistanceX", 12, 2, 20, 2, 4.238302))
sketch4.addConstraint(Sketcher.Constraint("DistanceY", 7, 2, 22, 2, 12.822199))
sketch4.addConstraint(Sketcher.Constraint("DistanceX", 21, 2, 23, 2, 30.2535))
sketch4.addConstraint(Sketcher.Constraint("DistanceX", 23, 2, 10, 2, 26.948899))
sketch4.addConstraint(Sketcher.Constraint("DistanceY", 10, 2, 23, 2, 14.590401))
sketch4.addConstraint(Sketcher.Constraint("Distance", 4, 49.75608))
sketch4.addConstraint(Sketcher.Constraint("Distance", 8, 41.11561))
sketch4.addConstraint(Sketcher.Constraint("Distance", 9, 40.284712))
sketch4.addConstraint(Sketcher.Constraint("Distance", 10, 44.798921))
sketch4.addConstraint(Sketcher.Constraint("Distance", 12, 30.357909))
sketch4.addConstraint(Sketcher.Constraint("Distance", 14, 37.869081))
sketch4.addConstraint(Sketcher.Constraint("Distance", 16, 44.370179))
sketch4.addConstraint(Sketcher.Constraint("Distance", 17, 28.44127))
sketch4.addConstraint(Sketcher.Constraint("Distance", 21, 30.357909))
sketch4.addConstraint(Sketcher.Constraint("Distance", 23, 37.869081))
sketch4.addConstraint(Sketcher.Constraint("DistanceX", 0, 2, 0, 1, 66.935377))
sketch4.addConstraint(Sketcher.Constraint("DistanceX", 5, 1, 5, 2, 75.711853))
sketch4.addConstraint(Sketcher.Constraint("DistanceX", -1, 1, 3, 2, 106.965172))
sketch4.addConstraint(Sketcher.Constraint("DistanceX", -1, 1, 6, 2, 99.62854))
sketch4.addConstraint(Sketcher.Constraint("DistanceY", 6, 2, -1, 1, 67.57836))
sketch4.addConstraint(Sketcher.Constraint("DistanceX", -1, 1, 11, 2, 88.405612))
sketch4.addConstraint(Sketcher.Constraint("DistanceY", 11, 2, -1, 1, 46.560178))
sketch4.addConstraint(Sketcher.Constraint("DistanceY", 14, 2, -1, 1, 31.614988))
sketch4.addConstraint(Sketcher.Constraint("DistanceX", -1, 1, 15, 2, 8.997139))
sketch4.addConstraint(Sketcher.Constraint("DistanceX", -1, 1, 16, 2, 41.20779))
sketch4.addConstraint(Sketcher.Constraint("DistanceY", 16, 2, -1, 1, 70.41848))
sketch4.addConstraint(Sketcher.Constraint("DistanceX", -1, 1, 18, 2, 44.29113))
sketch4.addConstraint(Sketcher.Constraint("DistanceY", 21, 2, -1, 1, 42.932628))
sketch4.addConstraint(Sketcher.Constraint("DistanceX", 8, 2, 4, 2, 7.431722))
sketch4.addConstraint(Sketcher.Constraint("DistanceX", 13, 2, 11, 2, 56.497389))
sketch4.addConstraint(Sketcher.Constraint("DistanceY", 18, 2, 13, 2, 30.686451))
sketch4.addConstraint(Sketcher.Constraint("DistanceY", 17, 2, 19, 2, 5.10212))
sketch4.addConstraint(Sketcher.Constraint("DistanceY", 20, 2, 13, 2, 2.632071))
pocket2 = body.newObject("PartDesign::Pocket", "Pocket001")
pocket2.Profile = sketch4
pocket2.Type = "ThroughAll"
doc.recompute()

fillet4 = body.newObject("PartDesign::Fillet", "Fillet003")
fillet4.Base = (pocket2, edges_at(pocket2, [
    (41.208, -70.418, 1.5),
    (8.997, -39.903, 1.5),
    (37.257, -42.253, 1.5),
    (102.633, -60.039, 1.5),
    (60.7, -75.805, 1.5),
    (88.406, -46.56, 1.5),
    (51.267, -85.762, 1.5),
    (99.629, -67.578, 1.5),
    (177, -117, 1.5),
    (110.065, -63, 1.5),
    (177, -63, 1.5),
    (31.908, -4.124, 1.5),
    (36.117, -34.131, 1.5),
    (5.864, -31.615, 1.5),
    (72.439, -37.151, 1.5),
    (44.291, -34.81, 1.5),
    (40.356, -6.756, 1.5),
    (75.684, -45.448, 1.5),
    (49.64, -72.939, 1.5),
    (45.431, -42.933, 1.5),
    (106.965, -70.778, 1.5),
    (164.259, -117, 1.5),
]))
fillet4.Radius = 2
doc.recompute()

fillet5 = body.newObject("PartDesign::Fillet", "Fillet004")
fillet5.Base = (fillet4, edges_at(fillet4, [(81.115, -114.039, 1.5), (88.547, -117, 1.5)]))
fillet5.Radius = 8

# Sketch on XY plane
sketch5 = body.newObject("Sketcher::SketchObject", "Sketch004")
sketch5.AttachmentSupport = (doc.getObject("XY_Plane"), [""])
sketch5.MapMode = "FlatFace"
sketch5.AttachmentOffset = App.Placement(Vector(0, 0, 3), App.Rotation())
sketch5.addGeometry(Part.Circle(Vector(0, 15, 0), Vector(0, 0, 1), 1.6), False)  # 0
sketch5.addGeometry(Part.Circle(Vector(0, -15, 0), Vector(0, 0, 1), 1.6), False)  # 1
add_polygon(sketch5, [(-10, 10), (-10, -10), (10, -10), (10, 10)])  # lines 2-5
sketch5.addConstraint(Sketcher.Constraint("Vertical", 2))
sketch5.addConstraint(Sketcher.Constraint("Horizontal", 3))
sketch5.addConstraint(Sketcher.Constraint("Vertical", 4))
sketch5.addConstraint(Sketcher.Constraint("Horizontal", 5))
sketch5.addConstraint(Sketcher.Constraint("Equal", 0, 1))
sketch5.addConstraint(Sketcher.Constraint("Symmetric", 0, 3, 1, 3, -1, 1))
sketch5.addConstraint(Sketcher.Constraint("Symmetric", 2, 2, 4, 2, -1, 1))
sketch5.addConstraint(Sketcher.Constraint("PointOnObject", 0, 3, -2))
sketch5.addConstraint(Sketcher.Constraint("Equal", 5, 2))
sketch5.addConstraint(Sketcher.Constraint("Diameter", 0, 3.3))
sketch5.addConstraint(Sketcher.Constraint("DistanceX", 3, 1, 3, 2, 20.0))
sketch5.addConstraint(Sketcher.Constraint("DistanceY", -1, 1, 0, 3, 15.0))
pocket3 = body.newObject("PartDesign::Pocket", "Pocket002")
pocket3.Profile = sketch5
pocket3.Type = "ThroughAll"

doc.recompute()
